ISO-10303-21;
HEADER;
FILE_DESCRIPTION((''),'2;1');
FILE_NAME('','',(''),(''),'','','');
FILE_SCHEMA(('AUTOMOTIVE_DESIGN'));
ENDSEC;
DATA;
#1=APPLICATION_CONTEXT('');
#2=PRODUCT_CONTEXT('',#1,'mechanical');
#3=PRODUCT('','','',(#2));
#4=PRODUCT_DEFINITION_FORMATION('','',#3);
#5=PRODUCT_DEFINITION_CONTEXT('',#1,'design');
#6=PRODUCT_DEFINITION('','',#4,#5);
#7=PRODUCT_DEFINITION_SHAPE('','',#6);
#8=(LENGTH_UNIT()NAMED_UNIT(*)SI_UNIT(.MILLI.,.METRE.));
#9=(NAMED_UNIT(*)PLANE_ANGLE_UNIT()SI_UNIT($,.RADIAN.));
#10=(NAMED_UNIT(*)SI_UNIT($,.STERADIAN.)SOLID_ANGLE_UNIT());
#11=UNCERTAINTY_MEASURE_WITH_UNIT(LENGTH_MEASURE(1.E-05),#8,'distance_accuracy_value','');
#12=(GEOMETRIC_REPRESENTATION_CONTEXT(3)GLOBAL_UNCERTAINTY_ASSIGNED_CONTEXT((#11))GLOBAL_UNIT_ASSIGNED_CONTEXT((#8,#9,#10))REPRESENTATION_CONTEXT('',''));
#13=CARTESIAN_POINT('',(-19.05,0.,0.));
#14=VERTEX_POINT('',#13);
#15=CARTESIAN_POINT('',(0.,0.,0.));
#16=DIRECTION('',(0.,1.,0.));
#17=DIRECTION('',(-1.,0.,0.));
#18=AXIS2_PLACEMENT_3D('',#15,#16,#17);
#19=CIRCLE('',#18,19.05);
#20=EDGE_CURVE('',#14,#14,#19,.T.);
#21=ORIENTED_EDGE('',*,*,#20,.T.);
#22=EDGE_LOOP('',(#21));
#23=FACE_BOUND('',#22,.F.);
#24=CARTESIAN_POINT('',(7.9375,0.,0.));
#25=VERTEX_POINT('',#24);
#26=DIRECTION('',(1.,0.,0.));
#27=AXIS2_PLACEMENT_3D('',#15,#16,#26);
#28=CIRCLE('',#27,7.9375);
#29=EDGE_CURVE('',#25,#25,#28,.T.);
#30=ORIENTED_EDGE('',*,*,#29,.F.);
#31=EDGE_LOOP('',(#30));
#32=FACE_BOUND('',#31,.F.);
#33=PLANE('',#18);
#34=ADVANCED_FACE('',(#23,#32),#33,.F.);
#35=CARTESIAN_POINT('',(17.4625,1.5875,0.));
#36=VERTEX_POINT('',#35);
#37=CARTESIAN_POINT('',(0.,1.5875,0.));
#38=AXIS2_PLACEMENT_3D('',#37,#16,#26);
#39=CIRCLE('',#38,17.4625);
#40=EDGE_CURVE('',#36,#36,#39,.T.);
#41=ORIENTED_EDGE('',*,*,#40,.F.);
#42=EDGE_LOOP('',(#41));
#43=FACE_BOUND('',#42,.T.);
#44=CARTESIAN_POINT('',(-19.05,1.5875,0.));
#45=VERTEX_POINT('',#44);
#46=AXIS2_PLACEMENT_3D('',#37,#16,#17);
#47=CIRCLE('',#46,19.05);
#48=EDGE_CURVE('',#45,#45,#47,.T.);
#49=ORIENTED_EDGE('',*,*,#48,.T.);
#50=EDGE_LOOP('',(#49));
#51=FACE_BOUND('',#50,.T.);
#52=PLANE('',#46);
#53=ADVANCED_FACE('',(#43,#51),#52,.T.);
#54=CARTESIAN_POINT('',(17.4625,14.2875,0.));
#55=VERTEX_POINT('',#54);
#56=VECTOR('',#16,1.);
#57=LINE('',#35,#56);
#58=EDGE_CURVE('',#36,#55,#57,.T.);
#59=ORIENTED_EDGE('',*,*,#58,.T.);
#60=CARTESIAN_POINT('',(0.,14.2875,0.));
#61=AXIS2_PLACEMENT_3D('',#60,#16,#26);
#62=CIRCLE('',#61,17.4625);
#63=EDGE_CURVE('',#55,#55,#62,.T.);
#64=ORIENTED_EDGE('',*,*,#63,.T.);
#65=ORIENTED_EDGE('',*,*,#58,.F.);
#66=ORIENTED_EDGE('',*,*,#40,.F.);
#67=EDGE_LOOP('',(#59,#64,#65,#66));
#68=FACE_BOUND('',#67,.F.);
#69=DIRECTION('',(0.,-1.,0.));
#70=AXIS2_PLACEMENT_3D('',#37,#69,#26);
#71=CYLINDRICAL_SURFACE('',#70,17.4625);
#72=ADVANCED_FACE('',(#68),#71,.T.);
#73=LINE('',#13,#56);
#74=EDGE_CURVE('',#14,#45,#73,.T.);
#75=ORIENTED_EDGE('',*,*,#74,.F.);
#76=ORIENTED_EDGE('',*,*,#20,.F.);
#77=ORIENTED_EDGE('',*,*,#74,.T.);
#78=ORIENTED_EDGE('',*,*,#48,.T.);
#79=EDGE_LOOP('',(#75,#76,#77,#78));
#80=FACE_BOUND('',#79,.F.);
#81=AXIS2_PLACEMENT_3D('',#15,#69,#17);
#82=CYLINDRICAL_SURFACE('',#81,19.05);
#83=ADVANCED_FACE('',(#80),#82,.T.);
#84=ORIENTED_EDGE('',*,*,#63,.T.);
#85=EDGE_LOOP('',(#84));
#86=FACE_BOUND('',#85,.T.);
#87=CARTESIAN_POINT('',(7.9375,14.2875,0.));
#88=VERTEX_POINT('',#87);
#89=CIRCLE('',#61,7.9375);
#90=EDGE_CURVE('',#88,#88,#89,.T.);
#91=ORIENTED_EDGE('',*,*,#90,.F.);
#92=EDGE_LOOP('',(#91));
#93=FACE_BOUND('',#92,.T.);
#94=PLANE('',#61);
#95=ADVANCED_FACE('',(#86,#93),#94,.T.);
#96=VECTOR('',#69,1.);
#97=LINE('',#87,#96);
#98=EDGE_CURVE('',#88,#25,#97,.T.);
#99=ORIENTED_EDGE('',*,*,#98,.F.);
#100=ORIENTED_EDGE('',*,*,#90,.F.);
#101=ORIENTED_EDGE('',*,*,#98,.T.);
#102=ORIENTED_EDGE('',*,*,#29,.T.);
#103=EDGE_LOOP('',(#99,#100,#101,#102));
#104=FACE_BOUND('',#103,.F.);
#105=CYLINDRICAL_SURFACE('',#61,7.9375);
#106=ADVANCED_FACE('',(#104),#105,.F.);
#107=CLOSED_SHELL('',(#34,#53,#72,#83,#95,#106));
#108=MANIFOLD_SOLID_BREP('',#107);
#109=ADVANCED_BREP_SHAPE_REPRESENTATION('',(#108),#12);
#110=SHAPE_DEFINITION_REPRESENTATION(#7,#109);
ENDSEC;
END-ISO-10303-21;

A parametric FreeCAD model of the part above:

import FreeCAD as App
import Part
import Sketcher
from FreeCAD import Vector
Q = App.Units.Quantity

doc = App.newDocument("Part")
body = doc.addObject("PartDesign::Body", "Body")

# Sketch on XZ plane
sketch1 = body.newObject("Sketcher::SketchObject", "Sketch")
sketch1.AttachmentSupport = (doc.getObject("XZ_Plane"), [""])
sketch1.MapMode = "FlatFace"
sketch1.addGeometry(Part.Circle(Vector(0, 0, 0), Vector(0, 0, 1), 19.05), False)
sketch1.addConstraint([
    Sketcher.Constraint("Coincident", 0, 3, -1, 1),
    Sketcher.Constraint("Diameter", 0, Q("1.5 in")),
])
pad1 = body.newObject("PartDesign::Pad", "Pad")
pad1.Profile = sketch1
pad1.Length = Q("0.0625 in")
pad1.Reversed = True

# Sketch on XZ plane
sketch2 = body.newObject("Sketcher::SketchObject", "Sketch001")
sketch2.AttachmentSupport = (doc.getObject("XZ_Plane"), [""])
sketch2.MapMode = "FlatFace"
sketch2.AttachmentOffset = App.Placement(Vector(0, 0, -0.0625 * 25.4), App.Rotation())
sketch2.addGeometry(Part.Circle(Vector(0, 0, 0), Vector(0, 0, 1), 17.4625), False)
sketch2.addConstraint([
    Sketcher.Constraint("Coincident", 0, 3, -1, 1),
    Sketcher.Constraint("Diameter", 0, Q("1.375 in")),
])
pad2 = body.newObject("PartDesign::Pad", "Pad001")
pad2.Profile = sketch2
pad2.Length = Q("0.5 in")
pad2.Reversed = True

# Sketch on XZ plane
sketch3 = body.newObject("Sketcher::SketchObject", "Sketch002")
sketch3.AttachmentSupport = (doc.getObject("XZ_Plane"), [""])
sketch3.MapMode = "FlatFace"
sketch3.AttachmentOffset = App.Placement(Vector(0, 0, -0.5625 * 25.4), App.Rotation())
sketch3.addGeometry(Part.Circle(Vector(0, 0, 0), Vector(0, 0, 1), 7.9375), False)
sketch3.addConstraint([
    Sketcher.Constraint("Coincident", 0, 3, -1, 1),
    Sketcher.Constraint("Diameter", 0, Q("0.625 in")),
])
pocket1 = body.newObject("PartDesign::Pocket", "Pocket")
pocket1.Profile = sketch3
pocket1.Length = Q("100 in")
pocket1.Reversed = True

doc.recompute()
